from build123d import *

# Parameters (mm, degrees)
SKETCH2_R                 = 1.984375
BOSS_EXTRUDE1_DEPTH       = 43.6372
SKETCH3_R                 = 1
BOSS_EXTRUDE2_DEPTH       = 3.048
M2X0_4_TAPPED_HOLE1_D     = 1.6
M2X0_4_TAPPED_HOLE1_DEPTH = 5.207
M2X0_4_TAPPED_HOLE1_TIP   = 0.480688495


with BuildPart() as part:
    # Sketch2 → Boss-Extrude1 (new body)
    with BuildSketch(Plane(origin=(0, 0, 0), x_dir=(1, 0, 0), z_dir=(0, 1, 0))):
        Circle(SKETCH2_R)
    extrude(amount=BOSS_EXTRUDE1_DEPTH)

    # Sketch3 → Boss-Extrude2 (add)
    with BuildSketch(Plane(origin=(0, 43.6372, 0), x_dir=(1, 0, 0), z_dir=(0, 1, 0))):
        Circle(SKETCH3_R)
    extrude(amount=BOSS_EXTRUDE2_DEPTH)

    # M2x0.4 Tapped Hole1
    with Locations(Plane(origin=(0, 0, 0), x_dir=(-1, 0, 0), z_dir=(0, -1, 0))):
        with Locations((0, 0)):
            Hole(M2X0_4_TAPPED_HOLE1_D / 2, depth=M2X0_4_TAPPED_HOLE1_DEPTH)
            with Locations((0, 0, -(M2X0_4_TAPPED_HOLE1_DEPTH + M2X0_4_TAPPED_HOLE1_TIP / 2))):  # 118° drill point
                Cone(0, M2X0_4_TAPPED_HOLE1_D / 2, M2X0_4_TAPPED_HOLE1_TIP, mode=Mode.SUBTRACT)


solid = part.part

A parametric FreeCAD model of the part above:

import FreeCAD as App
import Part
import Sketcher

V = App.Vector
Q = App.Units.Quantity

doc = App.newDocument("Part")
body = doc.addObject("PartDesign::Body", "Body")

# Sketch on XZ plane
sketch1 = body.newObject("Sketcher::SketchObject", "Sketch")
sketch1.AttachmentSupport = (doc.getObject("XZ_Plane"), [""])
sketch1.MapMode = "FlatFace"
sketch1.addGeometry(Part.Circle(V(0, 0, 0), V(0, 0, 1), 1.984375), False)
sketch1.addConstraint(Sketcher.Constraint("Coincident", 0, 3, -1, 1))
sketch1.addConstraint(Sketcher.Constraint("Diameter", 0, Q("0.15625 in")))
pad1 = body.newObject("PartDesign::Pad", "Pad")
pad1.Profile = sketch1
pad1.Length = Q("1.718 in")
pad1.Reversed = True

# Sketch on XZ plane
sketch2 = body.newObject("Sketcher::SketchObject", "Sketch001")
sketch2.AttachmentSupport = (doc.getObject("XZ_Plane"), [""])
sketch2.MapMode = "FlatFace"
sketch2.AttachmentOffset = App.Placement(V(0, 0, -1.718 * 25.4), App.Rotation())
sketch2.addGeometry(Part.Circle(V(0, 0, 0), V(0, 0, 1), 1), False)
sketch2.addConstraint(Sketcher.Constraint("Coincident", 0, 3, -1, 1))
sketch2.addConstraint(Sketcher.Constraint("Diameter", 0, Q("2 mm")))
pad2 = body.newObject("PartDesign::Pad", "Pad001")
pad2.Profile = sketch2
pad2.Length = Q("0.12 in")
pad2.Reversed = True

# Sketch on XZ plane
sketch3 = body.newObject("Sketcher::SketchObject", "Sketch002")
sketch3.AttachmentSupport = (doc.getObject("XZ_Plane"), [""])
sketch3.MapMode = "FlatFace"
sketch3.addGeometry(Part.Circle(V(0, 0, 0), V(0, 0, 1), 0.8), False)
sketch3.addConstraint(Sketcher.Constraint("Coincident", 0, 3, -1, 1))
sketch3.addConstraint(Sketcher.Constraint("Diameter", 0, Q("1.6 mm")))
doc.recompute()
hole = body.newObject("PartDesign::Hole", "Hole")
hole.Profile = sketch3
hole.ThreadType = "None"
hole.Diameter = 1.6
hole.DepthType = "Dimension"
hole.Depth = Q("0.205 in")
hole.DrillPoint = "Angled"
hole.DrillPointAngle = 118

doc.recompute()
